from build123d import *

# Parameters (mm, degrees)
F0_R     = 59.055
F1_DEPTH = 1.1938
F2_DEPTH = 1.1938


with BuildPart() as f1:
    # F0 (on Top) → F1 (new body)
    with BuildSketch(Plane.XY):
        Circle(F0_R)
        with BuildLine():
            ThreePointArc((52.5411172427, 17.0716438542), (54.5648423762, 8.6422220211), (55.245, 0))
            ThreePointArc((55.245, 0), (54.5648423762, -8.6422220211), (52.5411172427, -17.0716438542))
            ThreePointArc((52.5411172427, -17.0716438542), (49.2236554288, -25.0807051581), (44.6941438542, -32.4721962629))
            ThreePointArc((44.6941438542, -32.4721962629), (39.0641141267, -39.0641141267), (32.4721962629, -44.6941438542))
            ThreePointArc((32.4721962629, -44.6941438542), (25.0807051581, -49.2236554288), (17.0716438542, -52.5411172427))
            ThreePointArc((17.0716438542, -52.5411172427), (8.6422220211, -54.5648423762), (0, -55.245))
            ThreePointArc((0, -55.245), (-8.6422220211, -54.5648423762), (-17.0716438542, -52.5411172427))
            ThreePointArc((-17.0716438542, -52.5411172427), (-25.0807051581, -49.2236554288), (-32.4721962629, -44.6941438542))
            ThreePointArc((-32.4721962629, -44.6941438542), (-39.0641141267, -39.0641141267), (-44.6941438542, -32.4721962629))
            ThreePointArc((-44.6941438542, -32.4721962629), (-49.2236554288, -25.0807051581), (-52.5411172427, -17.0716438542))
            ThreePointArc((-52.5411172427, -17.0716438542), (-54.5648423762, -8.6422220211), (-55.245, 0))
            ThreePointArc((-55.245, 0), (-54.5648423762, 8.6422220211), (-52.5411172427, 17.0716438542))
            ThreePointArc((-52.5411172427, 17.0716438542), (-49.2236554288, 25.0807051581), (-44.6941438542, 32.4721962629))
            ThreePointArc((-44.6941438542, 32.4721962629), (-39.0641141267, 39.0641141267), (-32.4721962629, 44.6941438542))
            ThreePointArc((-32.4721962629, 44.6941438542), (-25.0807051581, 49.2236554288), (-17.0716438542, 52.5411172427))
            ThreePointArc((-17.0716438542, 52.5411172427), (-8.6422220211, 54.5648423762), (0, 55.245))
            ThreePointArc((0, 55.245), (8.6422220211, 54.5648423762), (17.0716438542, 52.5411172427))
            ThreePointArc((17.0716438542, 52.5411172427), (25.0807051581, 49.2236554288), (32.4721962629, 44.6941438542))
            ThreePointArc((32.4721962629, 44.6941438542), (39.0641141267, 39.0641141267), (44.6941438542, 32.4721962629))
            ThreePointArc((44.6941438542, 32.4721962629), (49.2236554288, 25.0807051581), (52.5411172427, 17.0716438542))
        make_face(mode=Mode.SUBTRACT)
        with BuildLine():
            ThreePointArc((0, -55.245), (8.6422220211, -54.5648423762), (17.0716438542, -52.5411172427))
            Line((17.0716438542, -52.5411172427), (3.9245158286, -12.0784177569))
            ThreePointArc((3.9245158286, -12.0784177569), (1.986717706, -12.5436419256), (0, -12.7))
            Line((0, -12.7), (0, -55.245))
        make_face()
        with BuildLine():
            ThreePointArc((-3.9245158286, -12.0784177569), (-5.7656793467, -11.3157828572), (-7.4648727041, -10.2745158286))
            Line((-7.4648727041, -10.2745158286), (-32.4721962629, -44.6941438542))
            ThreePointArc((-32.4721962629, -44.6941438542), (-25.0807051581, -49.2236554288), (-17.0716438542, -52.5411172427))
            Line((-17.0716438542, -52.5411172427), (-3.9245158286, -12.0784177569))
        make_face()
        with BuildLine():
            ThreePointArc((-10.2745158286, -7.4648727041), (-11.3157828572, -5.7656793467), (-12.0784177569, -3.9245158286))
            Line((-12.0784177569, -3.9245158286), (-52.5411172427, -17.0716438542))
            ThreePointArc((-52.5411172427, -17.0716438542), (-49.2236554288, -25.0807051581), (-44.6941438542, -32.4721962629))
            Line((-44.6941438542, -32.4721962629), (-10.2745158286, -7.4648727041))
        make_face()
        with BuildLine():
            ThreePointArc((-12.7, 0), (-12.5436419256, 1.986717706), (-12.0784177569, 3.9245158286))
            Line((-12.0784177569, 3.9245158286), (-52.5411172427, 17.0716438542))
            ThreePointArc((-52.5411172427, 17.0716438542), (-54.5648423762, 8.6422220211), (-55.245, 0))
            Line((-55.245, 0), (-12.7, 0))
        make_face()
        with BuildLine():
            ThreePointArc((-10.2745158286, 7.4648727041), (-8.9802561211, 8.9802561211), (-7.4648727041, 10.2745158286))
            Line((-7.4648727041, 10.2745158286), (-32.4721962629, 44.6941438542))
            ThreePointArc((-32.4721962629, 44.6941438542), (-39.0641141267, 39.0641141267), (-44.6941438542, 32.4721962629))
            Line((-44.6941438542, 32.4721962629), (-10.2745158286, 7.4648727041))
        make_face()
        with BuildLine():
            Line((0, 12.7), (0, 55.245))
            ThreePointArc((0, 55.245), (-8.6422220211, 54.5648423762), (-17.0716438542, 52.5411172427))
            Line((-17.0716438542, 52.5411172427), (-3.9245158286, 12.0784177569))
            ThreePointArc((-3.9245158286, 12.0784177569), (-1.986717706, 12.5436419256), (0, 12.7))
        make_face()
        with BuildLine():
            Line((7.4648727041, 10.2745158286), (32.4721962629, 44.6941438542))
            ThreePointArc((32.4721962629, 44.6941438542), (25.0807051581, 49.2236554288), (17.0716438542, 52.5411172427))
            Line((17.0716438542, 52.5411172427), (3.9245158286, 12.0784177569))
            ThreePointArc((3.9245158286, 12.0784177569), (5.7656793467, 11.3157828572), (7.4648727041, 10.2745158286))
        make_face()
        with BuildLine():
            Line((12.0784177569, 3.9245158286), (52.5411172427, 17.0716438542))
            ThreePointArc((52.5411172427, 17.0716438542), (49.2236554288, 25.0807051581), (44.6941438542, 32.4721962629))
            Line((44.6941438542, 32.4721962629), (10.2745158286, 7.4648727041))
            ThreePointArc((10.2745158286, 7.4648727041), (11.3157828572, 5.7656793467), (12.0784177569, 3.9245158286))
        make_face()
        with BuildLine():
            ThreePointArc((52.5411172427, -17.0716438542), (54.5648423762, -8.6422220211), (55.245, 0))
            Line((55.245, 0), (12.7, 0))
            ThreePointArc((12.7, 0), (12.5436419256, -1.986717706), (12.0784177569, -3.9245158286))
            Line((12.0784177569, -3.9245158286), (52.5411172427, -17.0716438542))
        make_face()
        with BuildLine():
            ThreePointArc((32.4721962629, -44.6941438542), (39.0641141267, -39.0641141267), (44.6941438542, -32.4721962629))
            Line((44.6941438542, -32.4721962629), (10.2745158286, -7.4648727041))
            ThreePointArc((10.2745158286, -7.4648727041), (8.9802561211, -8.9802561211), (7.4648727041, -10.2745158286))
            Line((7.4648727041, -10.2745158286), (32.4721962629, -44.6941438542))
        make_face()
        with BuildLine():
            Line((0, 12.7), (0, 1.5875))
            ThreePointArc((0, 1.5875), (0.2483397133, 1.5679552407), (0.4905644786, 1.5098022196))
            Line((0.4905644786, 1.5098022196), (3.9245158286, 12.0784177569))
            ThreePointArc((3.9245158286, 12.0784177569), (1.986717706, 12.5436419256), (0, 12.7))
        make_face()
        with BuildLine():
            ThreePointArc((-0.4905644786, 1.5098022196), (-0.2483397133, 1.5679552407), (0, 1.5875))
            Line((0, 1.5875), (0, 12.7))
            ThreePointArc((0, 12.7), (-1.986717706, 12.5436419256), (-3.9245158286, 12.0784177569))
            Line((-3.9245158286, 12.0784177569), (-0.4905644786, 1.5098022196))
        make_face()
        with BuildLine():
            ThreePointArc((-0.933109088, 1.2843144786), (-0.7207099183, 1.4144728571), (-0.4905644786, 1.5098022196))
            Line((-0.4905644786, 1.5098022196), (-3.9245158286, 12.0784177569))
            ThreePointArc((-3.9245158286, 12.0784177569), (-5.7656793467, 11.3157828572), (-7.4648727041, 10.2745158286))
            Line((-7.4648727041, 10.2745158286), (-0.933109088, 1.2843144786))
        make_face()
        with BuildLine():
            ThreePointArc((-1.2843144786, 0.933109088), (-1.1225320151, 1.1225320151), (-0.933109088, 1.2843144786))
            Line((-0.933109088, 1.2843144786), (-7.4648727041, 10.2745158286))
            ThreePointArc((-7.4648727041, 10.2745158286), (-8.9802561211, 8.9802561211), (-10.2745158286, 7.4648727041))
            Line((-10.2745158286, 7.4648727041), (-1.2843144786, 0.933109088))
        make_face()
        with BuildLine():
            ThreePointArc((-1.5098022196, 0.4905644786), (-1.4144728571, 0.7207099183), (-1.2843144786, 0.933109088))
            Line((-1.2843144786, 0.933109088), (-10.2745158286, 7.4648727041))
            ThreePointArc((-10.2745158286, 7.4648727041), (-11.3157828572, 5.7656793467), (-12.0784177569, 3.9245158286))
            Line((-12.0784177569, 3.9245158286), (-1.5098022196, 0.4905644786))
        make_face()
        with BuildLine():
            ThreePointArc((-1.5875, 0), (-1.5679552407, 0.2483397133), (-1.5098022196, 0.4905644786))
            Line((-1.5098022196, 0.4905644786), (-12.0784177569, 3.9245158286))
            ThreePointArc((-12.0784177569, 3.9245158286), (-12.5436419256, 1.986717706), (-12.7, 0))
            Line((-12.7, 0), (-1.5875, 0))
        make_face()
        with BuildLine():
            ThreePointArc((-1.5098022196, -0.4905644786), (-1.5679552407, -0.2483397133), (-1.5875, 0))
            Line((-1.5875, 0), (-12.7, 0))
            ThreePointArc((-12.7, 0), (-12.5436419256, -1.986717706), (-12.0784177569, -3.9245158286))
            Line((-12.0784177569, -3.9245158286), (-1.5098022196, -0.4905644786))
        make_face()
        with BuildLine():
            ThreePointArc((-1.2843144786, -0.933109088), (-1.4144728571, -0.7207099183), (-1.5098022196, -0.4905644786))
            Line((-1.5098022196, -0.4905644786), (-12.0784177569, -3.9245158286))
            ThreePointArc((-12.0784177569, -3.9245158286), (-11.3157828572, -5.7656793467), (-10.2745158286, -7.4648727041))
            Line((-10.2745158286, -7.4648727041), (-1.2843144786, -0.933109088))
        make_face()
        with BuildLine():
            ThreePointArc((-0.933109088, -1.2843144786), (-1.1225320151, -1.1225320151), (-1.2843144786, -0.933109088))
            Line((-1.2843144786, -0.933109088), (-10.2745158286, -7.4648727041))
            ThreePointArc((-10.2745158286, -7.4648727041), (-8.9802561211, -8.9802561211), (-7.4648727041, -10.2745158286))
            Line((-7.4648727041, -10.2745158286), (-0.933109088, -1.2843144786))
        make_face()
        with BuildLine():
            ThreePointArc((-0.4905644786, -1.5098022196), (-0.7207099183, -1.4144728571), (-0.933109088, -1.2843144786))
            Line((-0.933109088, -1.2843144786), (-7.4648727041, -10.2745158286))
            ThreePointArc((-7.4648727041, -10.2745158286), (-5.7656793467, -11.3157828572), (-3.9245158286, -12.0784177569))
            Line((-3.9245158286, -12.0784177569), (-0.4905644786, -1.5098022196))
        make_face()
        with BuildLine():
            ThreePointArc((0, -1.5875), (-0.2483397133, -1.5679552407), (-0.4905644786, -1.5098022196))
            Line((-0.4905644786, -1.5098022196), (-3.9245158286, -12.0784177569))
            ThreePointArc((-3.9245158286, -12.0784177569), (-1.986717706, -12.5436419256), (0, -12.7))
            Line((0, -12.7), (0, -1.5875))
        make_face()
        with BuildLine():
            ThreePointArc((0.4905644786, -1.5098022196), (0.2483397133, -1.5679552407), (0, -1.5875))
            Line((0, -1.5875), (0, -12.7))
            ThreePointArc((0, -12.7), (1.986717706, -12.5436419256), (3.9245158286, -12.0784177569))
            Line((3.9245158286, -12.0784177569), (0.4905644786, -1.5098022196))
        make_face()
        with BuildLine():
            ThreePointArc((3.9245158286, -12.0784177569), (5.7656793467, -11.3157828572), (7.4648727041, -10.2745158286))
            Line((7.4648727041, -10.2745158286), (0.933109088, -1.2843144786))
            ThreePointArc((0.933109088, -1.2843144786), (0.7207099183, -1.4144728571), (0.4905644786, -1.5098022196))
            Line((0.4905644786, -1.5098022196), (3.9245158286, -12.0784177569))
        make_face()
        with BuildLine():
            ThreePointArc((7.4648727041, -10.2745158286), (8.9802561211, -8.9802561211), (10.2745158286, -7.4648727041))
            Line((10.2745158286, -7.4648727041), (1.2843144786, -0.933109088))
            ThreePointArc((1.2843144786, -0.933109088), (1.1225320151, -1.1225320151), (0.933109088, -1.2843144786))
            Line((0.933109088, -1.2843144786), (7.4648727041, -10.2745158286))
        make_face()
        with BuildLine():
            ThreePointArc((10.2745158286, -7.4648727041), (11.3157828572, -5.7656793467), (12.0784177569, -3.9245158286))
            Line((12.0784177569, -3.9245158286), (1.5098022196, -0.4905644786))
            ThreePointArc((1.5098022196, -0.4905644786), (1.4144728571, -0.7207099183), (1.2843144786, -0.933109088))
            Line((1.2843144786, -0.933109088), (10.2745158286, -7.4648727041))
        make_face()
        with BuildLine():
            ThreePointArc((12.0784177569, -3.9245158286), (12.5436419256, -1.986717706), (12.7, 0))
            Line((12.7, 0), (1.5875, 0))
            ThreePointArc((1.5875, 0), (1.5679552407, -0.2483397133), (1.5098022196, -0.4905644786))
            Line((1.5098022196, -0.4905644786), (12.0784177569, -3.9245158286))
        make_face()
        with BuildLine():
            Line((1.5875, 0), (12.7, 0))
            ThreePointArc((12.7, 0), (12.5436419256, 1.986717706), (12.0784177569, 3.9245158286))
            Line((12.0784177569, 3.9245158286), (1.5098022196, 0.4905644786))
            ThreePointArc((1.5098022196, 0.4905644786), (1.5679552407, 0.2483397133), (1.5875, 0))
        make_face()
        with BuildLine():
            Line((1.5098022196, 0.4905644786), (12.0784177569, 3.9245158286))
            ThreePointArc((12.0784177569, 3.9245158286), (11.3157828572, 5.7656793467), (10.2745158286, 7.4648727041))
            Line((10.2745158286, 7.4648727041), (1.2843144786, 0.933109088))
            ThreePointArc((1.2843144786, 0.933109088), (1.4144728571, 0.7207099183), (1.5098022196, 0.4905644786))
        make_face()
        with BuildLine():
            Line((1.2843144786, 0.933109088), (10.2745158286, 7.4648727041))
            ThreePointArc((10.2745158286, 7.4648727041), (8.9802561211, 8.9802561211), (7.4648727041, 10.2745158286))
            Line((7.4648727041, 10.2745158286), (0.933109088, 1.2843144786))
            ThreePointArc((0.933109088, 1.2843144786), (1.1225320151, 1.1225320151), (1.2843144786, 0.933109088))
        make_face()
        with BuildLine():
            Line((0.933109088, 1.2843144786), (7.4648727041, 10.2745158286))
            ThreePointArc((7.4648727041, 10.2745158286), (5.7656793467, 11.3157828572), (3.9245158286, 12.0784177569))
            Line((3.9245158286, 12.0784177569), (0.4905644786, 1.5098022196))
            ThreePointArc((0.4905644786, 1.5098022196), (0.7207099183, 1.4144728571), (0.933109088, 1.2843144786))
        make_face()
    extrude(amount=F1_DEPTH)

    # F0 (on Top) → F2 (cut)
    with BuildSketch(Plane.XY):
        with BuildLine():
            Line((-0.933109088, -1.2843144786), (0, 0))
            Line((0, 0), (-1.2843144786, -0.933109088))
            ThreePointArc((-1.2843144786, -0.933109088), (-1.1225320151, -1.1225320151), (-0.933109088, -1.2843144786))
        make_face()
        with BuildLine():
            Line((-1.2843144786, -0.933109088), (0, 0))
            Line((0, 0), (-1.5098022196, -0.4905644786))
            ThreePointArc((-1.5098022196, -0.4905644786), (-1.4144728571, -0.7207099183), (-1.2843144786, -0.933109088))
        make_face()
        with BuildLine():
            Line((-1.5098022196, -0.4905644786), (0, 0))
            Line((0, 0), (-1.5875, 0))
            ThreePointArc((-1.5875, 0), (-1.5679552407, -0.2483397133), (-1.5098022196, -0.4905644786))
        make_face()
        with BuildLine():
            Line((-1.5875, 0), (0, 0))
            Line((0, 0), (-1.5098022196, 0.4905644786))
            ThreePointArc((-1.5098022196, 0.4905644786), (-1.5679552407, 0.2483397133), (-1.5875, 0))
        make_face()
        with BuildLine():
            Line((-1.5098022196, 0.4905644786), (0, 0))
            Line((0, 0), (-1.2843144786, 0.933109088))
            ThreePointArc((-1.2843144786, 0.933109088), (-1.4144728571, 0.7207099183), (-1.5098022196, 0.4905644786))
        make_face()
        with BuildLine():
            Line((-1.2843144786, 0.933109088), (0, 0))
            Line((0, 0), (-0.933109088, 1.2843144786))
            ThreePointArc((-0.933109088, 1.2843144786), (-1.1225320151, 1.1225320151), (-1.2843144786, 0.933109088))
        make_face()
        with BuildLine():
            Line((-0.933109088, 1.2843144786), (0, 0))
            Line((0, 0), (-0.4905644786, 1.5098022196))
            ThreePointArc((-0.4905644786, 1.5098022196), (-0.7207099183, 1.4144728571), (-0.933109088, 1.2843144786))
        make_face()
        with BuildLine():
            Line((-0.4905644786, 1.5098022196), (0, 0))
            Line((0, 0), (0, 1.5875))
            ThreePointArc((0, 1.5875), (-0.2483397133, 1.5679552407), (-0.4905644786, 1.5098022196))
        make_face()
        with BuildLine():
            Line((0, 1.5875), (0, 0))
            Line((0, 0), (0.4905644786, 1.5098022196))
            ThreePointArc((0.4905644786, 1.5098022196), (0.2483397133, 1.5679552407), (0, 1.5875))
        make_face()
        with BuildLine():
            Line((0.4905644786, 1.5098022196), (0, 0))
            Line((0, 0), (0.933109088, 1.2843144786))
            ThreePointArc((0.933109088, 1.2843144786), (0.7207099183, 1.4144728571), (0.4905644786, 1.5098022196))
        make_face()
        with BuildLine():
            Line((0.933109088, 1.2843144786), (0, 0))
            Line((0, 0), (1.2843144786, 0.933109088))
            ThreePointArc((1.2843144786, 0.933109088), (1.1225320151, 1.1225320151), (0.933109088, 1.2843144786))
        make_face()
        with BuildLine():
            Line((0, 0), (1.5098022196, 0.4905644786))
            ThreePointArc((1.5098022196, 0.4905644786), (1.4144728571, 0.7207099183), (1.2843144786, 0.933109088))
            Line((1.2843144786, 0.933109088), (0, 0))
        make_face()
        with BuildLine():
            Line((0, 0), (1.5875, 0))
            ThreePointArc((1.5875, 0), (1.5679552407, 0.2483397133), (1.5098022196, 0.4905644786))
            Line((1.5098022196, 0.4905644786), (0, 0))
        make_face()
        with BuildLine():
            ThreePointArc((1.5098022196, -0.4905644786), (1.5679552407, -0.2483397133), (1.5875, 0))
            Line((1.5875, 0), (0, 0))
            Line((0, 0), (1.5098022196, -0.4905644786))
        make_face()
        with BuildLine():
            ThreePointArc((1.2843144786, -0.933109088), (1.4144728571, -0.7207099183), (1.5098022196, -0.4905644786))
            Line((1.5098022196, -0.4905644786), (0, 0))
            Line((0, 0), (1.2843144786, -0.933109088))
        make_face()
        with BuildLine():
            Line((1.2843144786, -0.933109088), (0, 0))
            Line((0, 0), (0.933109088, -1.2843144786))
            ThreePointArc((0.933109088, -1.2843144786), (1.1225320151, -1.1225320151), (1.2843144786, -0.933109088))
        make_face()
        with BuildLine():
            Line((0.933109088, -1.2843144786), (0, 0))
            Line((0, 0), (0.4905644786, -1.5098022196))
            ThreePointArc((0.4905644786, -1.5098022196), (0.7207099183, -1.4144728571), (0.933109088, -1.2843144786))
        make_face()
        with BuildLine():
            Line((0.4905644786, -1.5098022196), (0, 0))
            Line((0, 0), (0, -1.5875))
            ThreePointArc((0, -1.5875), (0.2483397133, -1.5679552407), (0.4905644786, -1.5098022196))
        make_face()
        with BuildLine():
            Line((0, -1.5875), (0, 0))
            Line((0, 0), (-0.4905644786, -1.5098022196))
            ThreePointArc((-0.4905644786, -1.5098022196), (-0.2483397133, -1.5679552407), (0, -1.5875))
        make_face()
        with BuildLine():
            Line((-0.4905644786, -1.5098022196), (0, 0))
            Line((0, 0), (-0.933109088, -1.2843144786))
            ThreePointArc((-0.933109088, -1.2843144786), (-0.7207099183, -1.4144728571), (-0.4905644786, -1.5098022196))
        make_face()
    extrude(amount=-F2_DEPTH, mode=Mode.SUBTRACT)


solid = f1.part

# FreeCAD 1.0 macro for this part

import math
import FreeCAD as App
import Part
import Sketcher

V = App.Vector
Q = App.Units.Quantity

doc = App.newDocument("Part")
body = doc.addObject("PartDesign::Body", "Body")

sketch1 = body.newObject("Sketcher::SketchObject", "Sketch")
sketch1.AttachmentSupport = (doc.getObject("XY_Plane"), [""])
sketch1.MapMode = "FlatFace"
sketch1.addGeometry(Part.Circle(V(0, 0, 0), V(0, 0, 1), 59.05), False)
sketch1.addGeometry(Part.ArcOfCircle(Part.Circle(V(0, 0, 0), V(0, 0, 1), 12.7), math.radians(-108), math.radians(-90)), False)
sketch1.addGeometry(Part.LineSegment(V(0, -12.7, 0), V(0, -55.24, 0)), False)
sketch1.addGeometry(Part.ArcOfCircle(Part.Circle(V(0, 0, 0), V(0, 0, 1), 55.24), math.radians(-108), math.radians(-90)), False)
sketch1.addGeometry(Part.LineSegment(V(-17.07, -52.54, 0), V(-3.92, -12.08, 0)), False)
sketch1.addGeometry(Part.ArcOfCircle(Part.Circle(V(0, 0, 0), V(0, 0, 1), 12.7), math.radians(180), math.radians(198)), False)
sketch1.addGeometry(Part.LineSegment(V(-12.08, -3.92, 0), V(-52.54, -17.07, 0)), False)
sketch1.addGeometry(Part.ArcOfCircle(Part.Circle(V(0, 0, 0), V(0, 0, 1), 55.24), math.radians(180), math.radians(198)), False)
sketch1.addGeometry(Part.LineSegment(V(-55.24, 0, 0), V(-12.7, 0, 0)), False)
sketch1.addGeometry(Part.ArcOfCircle(Part.Circle(V(0, 0, 0), V(0, 0, 1), 12.7), math.radians(-144), math.radians(-126)), False)
sketch1.addGeometry(Part.LineSegment(V(-7.46, -10.27, 0), V(-32.47, -44.69, 0)), False)
sketch1.addGeometry(Part.ArcOfCircle(Part.Circle(V(0, 0, 0), V(0, 0, 1), 55.24), math.radians(-144), math.radians(-126)), False)
sketch1.addGeometry(Part.LineSegment(V(-44.69, -32.47, 0), V(-10.27, -7.46, 0)), False)
sketch1.addGeometry(Part.ArcOfCircle(Part.Circle(V(0, 0, 0), V(0, 0, 1), 12.7), math.radians(-72), math.radians(-54)), False)
sketch1.addGeometry(Part.LineSegment(V(7.46, -10.27, 0), V(32.47, -44.69, 0)), False)
sketch1.addGeometry(Part.ArcOfCircle(Part.Circle(V(0, 0, 0), V(0, 0, 1), 55.24), math.radians(-72), math.radians(-54)), False)
sketch1.addGeometry(Part.LineSegment(V(17.07, -52.54, 0), V(3.92, -12.08, 0)), False)
sketch1.addGeometry(Part.ArcOfCircle(Part.Circle(V(0, 0, 0), V(0, 0, 1), 12.7), math.radians(-36), math.radians(-18)), False)
sketch1.addGeometry(Part.LineSegment(V(12.08, -3.92, 0), V(52.54, -17.07, 0)), False)
sketch1.addGeometry(Part.ArcOfCircle(Part.Circle(V(0, 0, 0), V(0, 0, 1), 55.24), math.radians(-36), math.radians(-18)), False)
sketch1.addGeometry(Part.LineSegment(V(44.69, -32.47, 0), V(10.27, -7.46, 0)), False)
sketch1.addGeometry(Part.ArcOfCircle(Part.Circle(V(0, 0, 0), V(0, 0, 1), 12.7), math.radians(144), math.radians(162)), False)
sketch1.addGeometry(Part.LineSegment(V(-12.08, 3.92, 0), V(-52.54, 17.07, 0)), False)
sketch1.addGeometry(Part.ArcOfCircle(Part.Circle(V(0, 0, 0), V(0, 0, 1), 55.24), math.radians(144), math.radians(162)), False)
sketch1.addGeometry(Part.LineSegment(V(-44.69, 32.47, 0), V(-10.27, 7.46, 0)), False)
sketch1.addGeometry(Part.ArcOfCircle(Part.Circle(V(0, 0, 0), V(0, 0, 1), 12.7), math.radians(108), math.radians(126)), False)
sketch1.addGeometry(Part.LineSegment(V(-7.46, 10.27, 0), V(-32.47, 44.69, 0)), False)
sketch1.addGeometry(Part.ArcOfCircle(Part.Circle(V(0, 0, 0), V(0, 0, 1), 55.24), math.radians(108), math.radians(126)), False)
sketch1.addGeometry(Part.LineSegment(V(-17.07, 52.54, 0), V(-3.92, 12.08, 0)), False)
sketch1.addGeometry(Part.ArcOfCircle(Part.Circle(V(0, 0, 0), V(0, 0, 1), 1.59), math.radians(72), math.radians(90)), False)
sketch1.addGeometry(Part.ArcOfCircle(Part.Circle(V(0, 0, 0), V(0, 0, 1), 1.59), math.radians(54), math.radians(72)), False)
sketch1.addGeometry(Part.ArcOfCircle(Part.Circle(V(0, 0, 0), V(0, 0, 1), 1.59), math.radians(36), math.radians(54)), False)
sketch1.addGeometry(Part.ArcOfCircle(Part.Circle(V(0, 0, 0), V(0, 0, 1), 1.59), math.radians(18), math.radians(36)), False)
sketch1.addGeometry(Part.ArcOfCircle(Part.Circle(V(0, 0, 0), V(0, 0, 1), 1.59), math.radians(0), math.radians(18)), False)
sketch1.addGeometry(Part.ArcOfCircle(Part.Circle(V(0, 0, 0), V(0, 0, 1), 1.59), math.radians(-18), math.radians(0)), False)
sketch1.addGeometry(Part.ArcOfCircle(Part.Circle(V(0, 0, 0), V(0, 0, 1), 1.59), math.radians(-36), math.radians(-18)), False)
sketch1.addGeometry(Part.ArcOfCircle(Part.Circle(V(0, 0, 0), V(0, 0, 1), 1.59), math.radians(-54), math.radians(-36)), False)
sketch1.addGeometry(Part.ArcOfCircle(Part.Circle(V(0, 0, 0), V(0, 0, 1), 1.59), math.radians(-72), math.radians(-54)), False)
sketch1.addGeometry(Part.ArcOfCircle(Part.Circle(V(0, 0, 0), V(0, 0, 1), 1.59), math.radians(-90), math.radians(-72)), False)
sketch1.addGeometry(Part.ArcOfCircle(Part.Circle(V(0, 0, 0), V(0, 0, 1), 1.59), math.radians(-108), math.radians(-90)), False)
sketch1.addGeometry(Part.ArcOfCircle(Part.Circle(V(0, 0, 0), V(0, 0, 1), 1.59), math.radians(-126), math.radians(-108)), False)
sketch1.addGeometry(Part.ArcOfCircle(Part.Circle(V(0, 0, 0), V(0, 0, 1), 1.59), math.radians(-144), math.radians(-126)), False)
sketch1.addGeometry(Part.ArcOfCircle(Part.Circle(V(0, 0, 0), V(0, 0, 1), 1.59), math.radians(-162), math.radians(-144)), False)
sketch1.addGeometry(Part.ArcOfCircle(Part.Circle(V(0, 0, 0), V(0, 0, 1), 1.59), math.radians(180), math.radians(198)), False)
sketch1.addGeometry(Part.ArcOfCircle(Part.Circle(V(0, 0, 0), V(0, 0, 1), 1.59), math.radians(162), math.radians(180)), False)
sketch1.addGeometry(Part.ArcOfCircle(Part.Circle(V(0, 0, 0), V(0, 0, 1), 1.59), math.radians(144), math.radians(162)), False)
sketch1.addGeometry(Part.ArcOfCircle(Part.Circle(V(0, 0, 0), V(0, 0, 1), 1.59), math.radians(126), math.radians(144)), False)
sketch1.addGeometry(Part.ArcOfCircle(Part.Circle(V(0, 0, 0), V(0, 0, 1), 1.59), math.radians(108), math.radians(126)), False)
sketch1.addGeometry(Part.ArcOfCircle(Part.Circle(V(0, 0, 0), V(0, 0, 1), 1.59), math.radians(90), math.radians(108)), False)
sketch1.addGeometry(Part.ArcOfCircle(Part.Circle(V(0, 0, 0), V(0, 0, 1), 12.7), math.radians(36), math.radians(54)), False)
sketch1.addGeometry(Part.LineSegment(V(7.46, 10.27, 0), V(32.47, 44.69, 0)), False)
sketch1.addGeometry(Part.ArcOfCircle(Part.Circle(V(0, 0, 0), V(0, 0, 1), 55.24), math.radians(36), math.radians(54)), False)
sketch1.addGeometry(Part.LineSegment(V(44.69, 32.47, 0), V(10.27, 7.46, 0)), False)
sketch1.addGeometry(Part.ArcOfCircle(Part.Circle(V(0, 0, 0), V(0, 0, 1), 12.7), math.radians(0), math.radians(18)), False)
sketch1.addGeometry(Part.LineSegment(V(12.08, 3.92, 0), V(52.54, 17.07, 0)), False)
sketch1.addGeometry(Part.ArcOfCircle(Part.Circle(V(0, 0, 0), V(0, 0, 1), 55.24), math.radians(0), math.radians(18)), False)
sketch1.addGeometry(Part.LineSegment(V(55.24, 0, 0), V(12.7, 0, 0)), False)
sketch1.addGeometry(Part.LineSegment(V(17.07, 52.54, 0), V(3.92, 12.08, 0)), False)
sketch1.addGeometry(Part.ArcOfCircle(Part.Circle(V(0, 0, 0), V(0, 0, 1), 12.7), math.radians(72), math.radians(90)), False)
sketch1.addGeometry(Part.LineSegment(V(0, 12.7, 0), V(0, 55.24, 0)), False)
sketch1.addGeometry(Part.ArcOfCircle(Part.Circle(V(0, 0, 0), V(0, 0, 1), 55.24), math.radians(72), math.radians(90)), False)
sketch1.addConstraint(Sketcher.Constraint("Coincident", 1, 2, 2, 1))
sketch1.addConstraint(Sketcher.Constraint("Coincident", 2, 2, 3, 2))
sketch1.addConstraint(Sketcher.Constraint("Coincident", 3, 1, 4, 1))
sketch1.addConstraint(Sketcher.Constraint("Coincident", 4, 2, 1, 1))
sketch1.addConstraint(Sketcher.Constraint("Coincident", 5, 2, 6, 1))
sketch1.addConstraint(Sketcher.Constraint("Coincident", 6, 2, 7, 2))
sketch1.addConstraint(Sketcher.Constraint("Coincident", 7, 1, 8, 1))
sketch1.addConstraint(Sketcher.Constraint("Coincident", 8, 2, 5, 1))
sketch1.addConstraint(Sketcher.Constraint("Coincident", 9, 2, 10, 1))
sketch1.addConstraint(Sketcher.Constraint("Coincident", 10, 2, 11, 2))
sketch1.addConstraint(Sketcher.Constraint("Coincident", 11, 1, 12, 1))
sketch1.addConstraint(Sketcher.Constraint("Coincident", 12, 2, 9, 1))
sketch1.addConstraint(Sketcher.Constraint("Coincident", 13, 2, 14, 1))
sketch1.addConstraint(Sketcher.Constraint("Coincident", 14, 2, 15, 2))
sketch1.addConstraint(Sketcher.Constraint("Coincident", 15, 1, 16, 1))
sketch1.addConstraint(Sketcher.Constraint("Coincident", 16, 2, 13, 1))
sketch1.addConstraint(Sketcher.Constraint("Coincident", 17, 2, 18, 1))
sketch1.addConstraint(Sketcher.Constraint("Coincident", 18, 2, 19, 2))
sketch1.addConstraint(Sketcher.Constraint("Coincident", 19, 1, 20, 1))
sketch1.addConstraint(Sketcher.Constraint("Coincident", 20, 2, 17, 1))
sketch1.addConstraint(Sketcher.Constraint("Coincident", 21, 2, 22, 1))
sketch1.addConstraint(Sketcher.Constraint("Coincident", 22, 2, 23, 2))
sketch1.addConstraint(Sketcher.Constraint("Coincident", 23, 1, 24, 1))
sketch1.addConstraint(Sketcher.Constraint("Coincident", 24, 2, 21, 1))
sketch1.addConstraint(Sketcher.Constraint("Coincident", 25, 2, 26, 1))
sketch1.addConstraint(Sketcher.Constraint("Coincident", 26, 2, 27, 2))
sketch1.addConstraint(Sketcher.Constraint("Coincident", 27, 1, 28, 1))
sketch1.addConstraint(Sketcher.Constraint("Coincident", 28, 2, 25, 1))
sketch1.addConstraint(Sketcher.Constraint("Tangent", 29, 1, 30, 2))
sketch1.addConstraint(Sketcher.Constraint("Tangent", 30, 1, 31, 2))
sketch1.addConstraint(Sketcher.Constraint("Tangent", 31, 1, 32, 2))
sketch1.addConstraint(Sketcher.Constraint("Tangent", 32, 1, 33, 2))
sketch1.addConstraint(Sketcher.Constraint("Tangent", 33, 1, 34, 2))
sketch1.addConstraint(Sketcher.Constraint("Tangent", 34, 1, 35, 2))
sketch1.addConstraint(Sketcher.Constraint("Tangent", 35, 1, 36, 2))
sketch1.addConstraint(Sketcher.Constraint("Tangent", 36, 1, 37, 2))
sketch1.addConstraint(Sketcher.Constraint("Tangent", 37, 1, 38, 2))
sketch1.addConstraint(Sketcher.Constraint("Tangent", 38, 1, 39, 2))
sketch1.addConstraint(Sketcher.Constraint("Tangent", 39, 1, 40, 2))
sketch1.addConstraint(Sketcher.Constraint("Tangent", 40, 1, 41, 2))
sketch1.addConstraint(Sketcher.Constraint("Tangent", 41, 1, 42, 2))
sketch1.addConstraint(Sketcher.Constraint("Tangent", 42, 1, 43, 2))
sketch1.addConstraint(Sketcher.Constraint("Tangent", 43, 1, 44, 2))
sketch1.addConstraint(Sketcher.Constraint("Tangent", 44, 1, 45, 2))
sketch1.addConstraint(Sketcher.Constraint("Tangent", 45, 1, 46, 2))
sketch1.addConstraint(Sketcher.Constraint("Tangent", 46, 1, 47, 2))
sketch1.addConstraint(Sketcher.Constraint("Tangent", 47, 1, 48, 2))
sketch1.addConstraint(Sketcher.Constraint("Tangent", 48, 1, 29, 2))
sketch1.addConstraint(Sketcher.Constraint("Coincident", 49, 2, 50, 1))
sketch1.addConstraint(Sketcher.Constraint("Coincident", 50, 2, 51, 2))
sketch1.addConstraint(Sketcher.Constraint("Coincident", 51, 1, 52, 1))
sketch1.addConstraint(Sketcher.Constraint("Coincident", 52, 2, 49, 1))
sketch1.addConstraint(Sketcher.Constraint("Coincident", 53, 2, 54, 1))
sketch1.addConstraint(Sketcher.Constraint("Coincident", 54, 2, 55, 2))
sketch1.addConstraint(Sketcher.Constraint("Coincident", 55, 1, 56, 1))
sketch1.addConstraint(Sketcher.Constraint("Coincident", 56, 2, 53, 1))
sketch1.addConstraint(Sketcher.Constraint("Coincident", 57, 2, 58, 1))
sketch1.addConstraint(Sketcher.Constraint("Coincident", 58, 2, 59, 1))
sketch1.addConstraint(Sketcher.Constraint("Coincident", 59, 2, 60, 2))
sketch1.addConstraint(Sketcher.Constraint("Coincident", 60, 1, 57, 1))
sketch1.addConstraint(Sketcher.Constraint("Vertical", 2))
sketch1.addConstraint(Sketcher.Constraint("Horizontal", 8))
sketch1.addConstraint(Sketcher.Constraint("Horizontal", 56))
sketch1.addConstraint(Sketcher.Constraint("Vertical", 59))
sketch1.addConstraint(Sketcher.Constraint("Coincident", 0, 3, -1, 1))
sketch1.addConstraint(Sketcher.Constraint("Coincident", 1, 3, -1, 1))
sketch1.addConstraint(Sketcher.Constraint("Coincident", 3, 3, -1, 1))
sketch1.addConstraint(Sketcher.Constraint("Coincident", 5, 3, -1, 1))
sketch1.addConstraint(Sketcher.Constraint("Coincident", 7, 3, -1, 1))
sketch1.addConstraint(Sketcher.Constraint("Coincident", 9, 3, -1, 1))
sketch1.addConstraint(Sketcher.Constraint("Coincident", 11, 3, -1, 1))
sketch1.addConstraint(Sketcher.Constraint("Coincident", 13, 3, -1, 1))
sketch1.addConstraint(Sketcher.Constraint("Coincident", 15, 3, -1, 1))
sketch1.addConstraint(Sketcher.Constraint("Coincident", 17, 3, -1, 1))
sketch1.addConstraint(Sketcher.Constraint("Coincident", 19, 3, -1, 1))
sketch1.addConstraint(Sketcher.Constraint("Coincident", 21, 3, -1, 1))
sketch1.addConstraint(Sketcher.Constraint("Coincident", 23, 3, -1, 1))
sketch1.addConstraint(Sketcher.Constraint("Coincident", 25, 3, -1, 1))
sketch1.addConstraint(Sketcher.Constraint("Coincident", 27, 3, -1, 1))
sketch1.addConstraint(Sketcher.Constraint("Coincident", 29, 3, -1, 1))
sketch1.addConstraint(Sketcher.Constraint("Coincident", 31, 3, -1, 1))
sketch1.addConstraint(Sketcher.Constraint("Coincident", 33, 3, -1, 1))
sketch1.addConstraint(Sketcher.Constraint("Coincident", 35, 3, -1, 1))
sketch1.addConstraint(Sketcher.Constraint("Coincident", 37, 3, -1, 1))
sketch1.addConstraint(Sketcher.Constraint("Coincident", 39, 3, -1, 1))
sketch1.addConstraint(Sketcher.Constraint("Coincident", 41, 3, -1, 1))
sketch1.addConstraint(Sketcher.Constraint("Coincident", 43, 3, -1, 1))
sketch1.addConstraint(Sketcher.Constraint("Coincident", 45, 3, -1, 1))
sketch1.addConstraint(Sketcher.Constraint("Coincident", 49, 3, -1, 1))
sketch1.addConstraint(Sketcher.Constraint("Coincident", 51, 3, -1, 1))
sketch1.addConstraint(Sketcher.Constraint("Coincident", 53, 3, -1, 1))
sketch1.addConstraint(Sketcher.Constraint("Coincident", 55, 3, -1, 1))
sketch1.addConstraint(Sketcher.Constraint("Coincident", 58, 3, -1, 1))
sketch1.addConstraint(Sketcher.Constraint("Coincident", 60, 3, -1, 1))
sketch1.addConstraint(Sketcher.Constraint("Equal", 1, 5))
sketch1.addConstraint(Sketcher.Constraint("Equal", 3, 7))
sketch1.addConstraint(Sketcher.Constraint("Equal", 5, 9))
sketch1.addConstraint(Sketcher.Constraint("Equal", 7, 11))
sketch1.addConstraint(Sketcher.Constraint("Equal", 9, 13))
sketch1.addConstraint(Sketcher.Constraint("Equal", 11, 15))
sketch1.addConstraint(Sketcher.Constraint("Equal", 13, 17))
sketch1.addConstraint(Sketcher.Constraint("Equal", 15, 19))
sketch1.addConstraint(Sketcher.Constraint("Equal", 17, 21))
sketch1.addConstraint(Sketcher.Constraint("Equal", 19, 23))
sketch1.addConstraint(Sketcher.Constraint("Equal", 21, 25))
sketch1.addConstraint(Sketcher.Constraint("Equal", 23, 27))
sketch1.addConstraint(Sketcher.Constraint("Equal", 45, 46))
sketch1.addConstraint(Sketcher.Constraint("Equal", 25, 49))
sketch1.addConstraint(Sketcher.Constraint("Equal", 27, 51))
sketch1.addConstraint(Sketcher.Constraint("Equal", 49, 53))
sketch1.addConstraint(Sketcher.Constraint("Equal", 51, 55))
sketch1.addConstraint(Sketcher.Constraint("Equal", 53, 58))
sketch1.addConstraint(Sketcher.Constraint("Equal", 55, 60))
sketch1.addConstraint(Sketcher.Constraint("PointOnObject", 1, 2, -2))
sketch1.addConstraint(Sketcher.Constraint("PointOnObject", 7, 1, -1))
sketch1.addConstraint(Sketcher.Constraint("PointOnObject", 33, 1, -1))
sketch1.addConstraint(Sketcher.Constraint("PointOnObject", 38, 1, -2))
sketch1.addConstraint(Sketcher.Constraint("PointOnObject", 43, 1, -1))
sketch1.addConstraint(Sketcher.Constraint("PointOnObject", 48, 1, -2))
sketch1.addConstraint(Sketcher.Constraint("PointOnObject", 55, 1, -1))
sketch1.addConstraint(Sketcher.Constraint("PointOnObject", 58, 2, -2))
sketch1.addConstraint(Sketcher.Constraint("Perpendicular", 12, 14))
sketch1.addConstraint(Sketcher.Constraint("Perpendicular", 6, 16))
sketch1.addConstraint(Sketcher.Constraint("Perpendicular", 4, 18))
sketch1.addConstraint(Sketcher.Constraint("Perpendicular", 10, 20))
sketch1.addConstraint(Sketcher.Constraint("Parallel", 18, 22))
sketch1.addConstraint(Sketcher.Constraint("Parallel", 20, 24))
sketch1.addConstraint(Sketcher.Constraint("Parallel", 14, 26))
sketch1.addConstraint(Sketcher.Constraint("Parallel", 16, 28))
sketch1.addConstraint(Sketcher.Constraint("Perpendicular", 24, 50))
sketch1.addConstraint(Sketcher.Constraint("Perpendicular", 26, 52))
sketch1.addConstraint(Sketcher.Constraint("Perpendicular", 28, 54))
sketch1.addConstraint(Sketcher.Constraint("Perpendicular", 22, 57))
sketch1.addConstraint(Sketcher.Constraint("Horizontal", 9, 2, 13, 2))
sketch1.addConstraint(Sketcher.Constraint("Horizontal", 10, 2, 14, 2))
sketch1.addConstraint(Sketcher.Constraint("Horizontal", 3, 1, 15, 1))
sketch1.addConstraint(Sketcher.Constraint("Horizontal", 4, 2, 16, 2))
sketch1.addConstraint(Sketcher.Constraint("Horizontal", 5, 2, 17, 2))
sketch1.addConstraint(Sketcher.Constraint("Horizontal", 11, 1, 19, 1))
sketch1.addConstraint(Sketcher.Constraint("Horizontal", 37, 1, 39, 1))
sketch1.addConstraint(Sketcher.Constraint("Horizontal", 36, 1, 40, 1))
sketch1.addConstraint(Sketcher.Constraint("Horizontal", 35, 1, 41, 1))
sketch1.addConstraint(Sketcher.Constraint("Horizontal", 34, 1, 42, 1))
sketch1.addConstraint(Sketcher.Constraint("Horizontal", 32, 1, 44, 1))
sketch1.addConstraint(Sketcher.Constraint("Horizontal", 31, 1, 45, 1))
sketch1.addConstraint(Sketcher.Constraint("Horizontal", 30, 1, 46, 1))
sketch1.addConstraint(Sketcher.Constraint("Horizontal", 29, 1, 47, 1))
sketch1.addConstraint(Sketcher.Constraint("Horizontal", 25, 2, 49, 2))
sketch1.addConstraint(Sketcher.Constraint("Horizontal", 23, 1, 51, 1))
sketch1.addConstraint(Sketcher.Constraint("Horizontal", 21, 2, 53, 2))
sketch1.addConstraint(Sketcher.Constraint("Horizontal", 28, 2, 57, 2))
sketch1.addConstraint(Sketcher.Constraint("Vertical", 5, 2, 21, 2))
sketch1.addConstraint(Sketcher.Constraint("Vertical", 11, 1, 23, 1))
sketch1.addConstraint(Sketcher.Constraint("Vertical", 9, 2, 25, 2))
sketch1.addConstraint(Sketcher.Constraint("Vertical", 3, 1, 27, 1))
sketch1.addConstraint(Sketcher.Constraint("Vertical", 32, 1, 34, 1))
sketch1.addConstraint(Sketcher.Constraint("Vertical", 31, 1, 35, 1))
sketch1.addConstraint(Sketcher.Constraint("Vertical", 30, 1, 36, 1))
sketch1.addConstraint(Sketcher.Constraint("Vertical", 29, 1, 37, 1))
sketch1.addConstraint(Sketcher.Constraint("Radius", 1, Q("0.5 in")))
sketch1.addConstraint(Sketcher.Constraint("Diameter", 0, Q("4.65 in")))
sketch1.addConstraint(Sketcher.Constraint("Angle", 4, Q("72 deg")))
sketch1.addConstraint(Sketcher.Constraint("Angle", 10, Q("-126 deg")))
sketch1.addConstraint(Sketcher.Constraint("Radius", 3, Q("2.175 in")))
sketch1.addConstraint(Sketcher.Constraint("Radius", 29, Q("0.0625 in")))
sketch1.addConstraint(Sketcher.Constraint("DistanceX", -1, 1, 30, 1, 0.933109))
sketch1.addConstraint(Sketcher.Constraint("DistanceY", -1, 1, 31, 1, 0.933109))
sketch1.addConstraint(Sketcher.Constraint("DistanceX", 3, 1, -1, 1, 17.071644))
sketch1.addConstraint(Sketcher.Constraint("DistanceX", 5, 2, -1, 1, 12.078418))
sketch1.addConstraint(Sketcher.Constraint("DistanceX", 9, 2, -1, 1, 7.464873))
sketch1.addConstraint(Sketcher.Constraint("DistanceX", 11, 1, -1, 1, 44.694144))
sketch1.addConstraint(Sketcher.Constraint("DistanceX", -1, 1, 29, 1, 0.490564))
sketch1.addConstraint(Sketcher.Constraint("DistanceX", -1, 1, 32, 1, 1.509802))
pad1 = body.newObject("PartDesign::Pad", "Pad")
pad1.Profile = sketch1
pad1.Length = Q("0.047 in")

sketch2 = body.newObject("Sketcher::SketchObject", "Sketch001")
sketch2.AttachmentSupport = (doc.getObject("XY_Plane"), [""])
sketch2.MapMode = "FlatFace"
sketch2.addGeometry(Part.ArcOfCircle(Part.Circle(V(0, 0, 0), V(0, 0, 1), 1.59), math.radians(-108), math.radians(-90)), False)
sketch2.addGeometry(Part.ArcOfCircle(Part.Circle(V(0, 0, 0), V(0, 0, 1), 1.59), math.radians(-90), math.radians(-72)), False)
sketch2.addGeometry(Part.ArcOfCircle(Part.Circle(V(0, 0, 0), V(0, 0, 1), 1.59), math.radians(-72), math.radians(-54)), False)
sketch2.addGeometry(Part.ArcOfCircle(Part.Circle(V(0, 0, 0), V(0, 0, 1), 1.59), math.radians(-54), math.radians(-36)), False)
sketch2.addGeometry(Part.ArcOfCircle(Part.Circle(V(0, 0, 0), V(0, 0, 1), 1.59), math.radians(-36), math.radians(-18)), False)
sketch2.addGeometry(Part.ArcOfCircle(Part.Circle(V(0, 0, 0), V(0, 0, 1), 1.59), math.radians(-18), math.radians(0)), False)
sketch2.addGeometry(Part.ArcOfCircle(Part.Circle(V(0, 0, 0), V(0, 0, 1), 1.59), math.radians(0), math.radians(18)), False)
sketch2.addGeometry(Part.ArcOfCircle(Part.Circle(V(0, 0, 0), V(0, 0, 1), 1.59), math.radians(18), math.radians(36)), False)
sketch2.addGeometry(Part.ArcOfCircle(Part.Circle(V(0, 0, 0), V(0, 0, 1), 1.59), math.radians(36), math.radians(54)), False)
sketch2.addGeometry(Part.ArcOfCircle(Part.Circle(V(0, 0, 0), V(0, 0, 1), 1.59), math.radians(54), math.radians(72)), False)
sketch2.addGeometry(Part.ArcOfCircle(Part.Circle(V(0, 0, 0), V(0, 0, 1), 1.59), math.radians(72), math.radians(90)), False)
sketch2.addGeometry(Part.ArcOfCircle(Part.Circle(V(0, 0, 0), V(0, 0, 1), 1.59), math.radians(90), math.radians(108)), False)
sketch2.addGeometry(Part.ArcOfCircle(Part.Circle(V(0, 0, 0), V(0, 0, 1), 1.59), math.radians(108), math.radians(126)), False)
sketch2.addGeometry(Part.ArcOfCircle(Part.Circle(V(0, 0, 0), V(0, 0, 1), 1.59), math.radians(126), math.radians(144)), False)
sketch2.addGeometry(Part.ArcOfCircle(Part.Circle(V(0, 0, 0), V(0, 0, 1), 1.59), math.radians(144), math.radians(162)), False)
sketch2.addGeometry(Part.ArcOfCircle(Part.Circle(V(0, 0, 0), V(0, 0, 1), 1.59), math.radians(162), math.radians(180)), False)
sketch2.addGeometry(Part.ArcOfCircle(Part.Circle(V(0, 0, 0), V(0, 0, 1), 1.59), math.radians(180), math.radians(198)), False)
sketch2.addGeometry(Part.ArcOfCircle(Part.Circle(V(0, 0, 0), V(0, 0, 1), 1.59), math.radians(-162), math.radians(-144)), False)
sketch2.addGeometry(Part.ArcOfCircle(Part.Circle(V(0, 0, 0), V(0, 0, 1), 1.59), math.radians(-144), math.radians(-126)), False)
sketch2.addGeometry(Part.ArcOfCircle(Part.Circle(V(0, 0, 0), V(0, 0, 1), 1.59), math.radians(-126), math.radians(-108)), False)
sketch2.addConstraint(Sketcher.Constraint("Tangent", 0, 2, 1, 1))
sketch2.addConstraint(Sketcher.Constraint("Tangent", 1, 2, 2, 1))
sketch2.addConstraint(Sketcher.Constraint("Tangent", 2, 2, 3, 1))
sketch2.addConstraint(Sketcher.Constraint("Tangent", 3, 2, 4, 1))
sketch2.addConstraint(Sketcher.Constraint("Tangent", 4, 2, 5, 1))
sketch2.addConstraint(Sketcher.Constraint("Tangent", 5, 2, 6, 1))
sketch2.addConstraint(Sketcher.Constraint("Tangent", 6, 2, 7, 1))
sketch2.addConstraint(Sketcher.Constraint("Tangent", 7, 2, 8, 1))
sketch2.addConstraint(Sketcher.Constraint("Tangent", 8, 2, 9, 1))
sketch2.addConstraint(Sketcher.Constraint("Tangent", 9, 2, 10, 1))
sketch2.addConstraint(Sketcher.Constraint("Tangent", 10, 2, 11, 1))
sketch2.addConstraint(Sketcher.Constraint("Tangent", 11, 2, 12, 1))
sketch2.addConstraint(Sketcher.Constraint("Tangent", 12, 2, 13, 1))
sketch2.addConstraint(Sketcher.Constraint("Tangent", 13, 2, 14, 1))
sketch2.addConstraint(Sketcher.Constraint("Tangent", 14, 2, 15, 1))
sketch2.addConstraint(Sketcher.Constraint("Tangent", 15, 2, 16, 1))
sketch2.addConstraint(Sketcher.Constraint("Tangent", 16, 2, 17, 1))
sketch2.addConstraint(Sketcher.Constraint("Tangent", 17, 2, 18, 1))
sketch2.addConstraint(Sketcher.Constraint("Tangent", 18, 2, 19, 1))
sketch2.addConstraint(Sketcher.Constraint("Tangent", 19, 2, 0, 1))
sketch2.addConstraint(Sketcher.Constraint("Coincident", 0, 3, -1, 1))
sketch2.addConstraint(Sketcher.Constraint("Coincident", 2, 3, -1, 1))
sketch2.addConstraint(Sketcher.Constraint("Coincident", 4, 3, -1, 1))
sketch2.addConstraint(Sketcher.Constraint("Coincident", 6, 3, -1, 1))
sketch2.addConstraint(Sketcher.Constraint("Coincident", 8, 3, -1, 1))
sketch2.addConstraint(Sketcher.Constraint("Coincident", 10, 3, -1, 1))
sketch2.addConstraint(Sketcher.Constraint("Coincident", 12, 3, -1, 1))
sketch2.addConstraint(Sketcher.Constraint("Coincident", 14, 3, -1, 1))
sketch2.addConstraint(Sketcher.Constraint("Coincident", 16, 3, -1, 1))
sketch2.addConstraint(Sketcher.Constraint("Equal", 16, 17))
sketch2.addConstraint(Sketcher.Constraint("PointOnObject", 0, 2, -2))
sketch2.addConstraint(Sketcher.Constraint("PointOnObject", 5, 2, -1))
sketch2.addConstraint(Sketcher.Constraint("PointOnObject", 10, 2, -2))
sketch2.addConstraint(Sketcher.Constraint("PointOnObject", 15, 2, -1))
sketch2.addConstraint(Sketcher.Constraint("Horizontal", 9, 2, 11, 2))
sketch2.addConstraint(Sketcher.Constraint("Horizontal", 8, 2, 12, 2))
sketch2.addConstraint(Sketcher.Constraint("Horizontal", 7, 2, 13, 2))
sketch2.addConstraint(Sketcher.Constraint("Horizontal", 6, 2, 14, 2))
sketch2.addConstraint(Sketcher.Constraint("Horizontal", 4, 2, 16, 2))
sketch2.addConstraint(Sketcher.Constraint("Horizontal", 3, 2, 17, 2))
sketch2.addConstraint(Sketcher.Constraint("Horizontal", 2, 2, 18, 2))
sketch2.addConstraint(Sketcher.Constraint("Horizontal", 1, 2, 19, 2))
sketch2.addConstraint(Sketcher.Constraint("Vertical", 4, 2, 6, 2))
sketch2.addConstraint(Sketcher.Constraint("Vertical", 3, 2, 7, 2))
sketch2.addConstraint(Sketcher.Constraint("Vertical", 2, 2, 8, 2))
sketch2.addConstraint(Sketcher.Constraint("Vertical", 1, 2, 9, 2))
sketch2.addConstraint(Sketcher.Constraint("Radius", 0, Q("0.0625 in")))
sketch2.addConstraint(Sketcher.Constraint("DistanceX", 1, 2, 3, 2, Q("0.03125 in")))
sketch2.addConstraint(Sketcher.Constraint("DistanceY", 2, 2, 4, 2, Q("0.03125 in")))
sketch2.addConstraint(Sketcher.Constraint("DistanceX", -1, 1, 2, 2, 0.933109))
sketch2.addConstraint(Sketcher.Constraint("DistanceY", 3, 2, -1, 1, 0.933109))
pocket1 = body.newObject("PartDesign::Pocket", "Pocket")
pocket1.Profile = sketch2
pocket1.Length = Q("0.047 in")

doc.recompute()
